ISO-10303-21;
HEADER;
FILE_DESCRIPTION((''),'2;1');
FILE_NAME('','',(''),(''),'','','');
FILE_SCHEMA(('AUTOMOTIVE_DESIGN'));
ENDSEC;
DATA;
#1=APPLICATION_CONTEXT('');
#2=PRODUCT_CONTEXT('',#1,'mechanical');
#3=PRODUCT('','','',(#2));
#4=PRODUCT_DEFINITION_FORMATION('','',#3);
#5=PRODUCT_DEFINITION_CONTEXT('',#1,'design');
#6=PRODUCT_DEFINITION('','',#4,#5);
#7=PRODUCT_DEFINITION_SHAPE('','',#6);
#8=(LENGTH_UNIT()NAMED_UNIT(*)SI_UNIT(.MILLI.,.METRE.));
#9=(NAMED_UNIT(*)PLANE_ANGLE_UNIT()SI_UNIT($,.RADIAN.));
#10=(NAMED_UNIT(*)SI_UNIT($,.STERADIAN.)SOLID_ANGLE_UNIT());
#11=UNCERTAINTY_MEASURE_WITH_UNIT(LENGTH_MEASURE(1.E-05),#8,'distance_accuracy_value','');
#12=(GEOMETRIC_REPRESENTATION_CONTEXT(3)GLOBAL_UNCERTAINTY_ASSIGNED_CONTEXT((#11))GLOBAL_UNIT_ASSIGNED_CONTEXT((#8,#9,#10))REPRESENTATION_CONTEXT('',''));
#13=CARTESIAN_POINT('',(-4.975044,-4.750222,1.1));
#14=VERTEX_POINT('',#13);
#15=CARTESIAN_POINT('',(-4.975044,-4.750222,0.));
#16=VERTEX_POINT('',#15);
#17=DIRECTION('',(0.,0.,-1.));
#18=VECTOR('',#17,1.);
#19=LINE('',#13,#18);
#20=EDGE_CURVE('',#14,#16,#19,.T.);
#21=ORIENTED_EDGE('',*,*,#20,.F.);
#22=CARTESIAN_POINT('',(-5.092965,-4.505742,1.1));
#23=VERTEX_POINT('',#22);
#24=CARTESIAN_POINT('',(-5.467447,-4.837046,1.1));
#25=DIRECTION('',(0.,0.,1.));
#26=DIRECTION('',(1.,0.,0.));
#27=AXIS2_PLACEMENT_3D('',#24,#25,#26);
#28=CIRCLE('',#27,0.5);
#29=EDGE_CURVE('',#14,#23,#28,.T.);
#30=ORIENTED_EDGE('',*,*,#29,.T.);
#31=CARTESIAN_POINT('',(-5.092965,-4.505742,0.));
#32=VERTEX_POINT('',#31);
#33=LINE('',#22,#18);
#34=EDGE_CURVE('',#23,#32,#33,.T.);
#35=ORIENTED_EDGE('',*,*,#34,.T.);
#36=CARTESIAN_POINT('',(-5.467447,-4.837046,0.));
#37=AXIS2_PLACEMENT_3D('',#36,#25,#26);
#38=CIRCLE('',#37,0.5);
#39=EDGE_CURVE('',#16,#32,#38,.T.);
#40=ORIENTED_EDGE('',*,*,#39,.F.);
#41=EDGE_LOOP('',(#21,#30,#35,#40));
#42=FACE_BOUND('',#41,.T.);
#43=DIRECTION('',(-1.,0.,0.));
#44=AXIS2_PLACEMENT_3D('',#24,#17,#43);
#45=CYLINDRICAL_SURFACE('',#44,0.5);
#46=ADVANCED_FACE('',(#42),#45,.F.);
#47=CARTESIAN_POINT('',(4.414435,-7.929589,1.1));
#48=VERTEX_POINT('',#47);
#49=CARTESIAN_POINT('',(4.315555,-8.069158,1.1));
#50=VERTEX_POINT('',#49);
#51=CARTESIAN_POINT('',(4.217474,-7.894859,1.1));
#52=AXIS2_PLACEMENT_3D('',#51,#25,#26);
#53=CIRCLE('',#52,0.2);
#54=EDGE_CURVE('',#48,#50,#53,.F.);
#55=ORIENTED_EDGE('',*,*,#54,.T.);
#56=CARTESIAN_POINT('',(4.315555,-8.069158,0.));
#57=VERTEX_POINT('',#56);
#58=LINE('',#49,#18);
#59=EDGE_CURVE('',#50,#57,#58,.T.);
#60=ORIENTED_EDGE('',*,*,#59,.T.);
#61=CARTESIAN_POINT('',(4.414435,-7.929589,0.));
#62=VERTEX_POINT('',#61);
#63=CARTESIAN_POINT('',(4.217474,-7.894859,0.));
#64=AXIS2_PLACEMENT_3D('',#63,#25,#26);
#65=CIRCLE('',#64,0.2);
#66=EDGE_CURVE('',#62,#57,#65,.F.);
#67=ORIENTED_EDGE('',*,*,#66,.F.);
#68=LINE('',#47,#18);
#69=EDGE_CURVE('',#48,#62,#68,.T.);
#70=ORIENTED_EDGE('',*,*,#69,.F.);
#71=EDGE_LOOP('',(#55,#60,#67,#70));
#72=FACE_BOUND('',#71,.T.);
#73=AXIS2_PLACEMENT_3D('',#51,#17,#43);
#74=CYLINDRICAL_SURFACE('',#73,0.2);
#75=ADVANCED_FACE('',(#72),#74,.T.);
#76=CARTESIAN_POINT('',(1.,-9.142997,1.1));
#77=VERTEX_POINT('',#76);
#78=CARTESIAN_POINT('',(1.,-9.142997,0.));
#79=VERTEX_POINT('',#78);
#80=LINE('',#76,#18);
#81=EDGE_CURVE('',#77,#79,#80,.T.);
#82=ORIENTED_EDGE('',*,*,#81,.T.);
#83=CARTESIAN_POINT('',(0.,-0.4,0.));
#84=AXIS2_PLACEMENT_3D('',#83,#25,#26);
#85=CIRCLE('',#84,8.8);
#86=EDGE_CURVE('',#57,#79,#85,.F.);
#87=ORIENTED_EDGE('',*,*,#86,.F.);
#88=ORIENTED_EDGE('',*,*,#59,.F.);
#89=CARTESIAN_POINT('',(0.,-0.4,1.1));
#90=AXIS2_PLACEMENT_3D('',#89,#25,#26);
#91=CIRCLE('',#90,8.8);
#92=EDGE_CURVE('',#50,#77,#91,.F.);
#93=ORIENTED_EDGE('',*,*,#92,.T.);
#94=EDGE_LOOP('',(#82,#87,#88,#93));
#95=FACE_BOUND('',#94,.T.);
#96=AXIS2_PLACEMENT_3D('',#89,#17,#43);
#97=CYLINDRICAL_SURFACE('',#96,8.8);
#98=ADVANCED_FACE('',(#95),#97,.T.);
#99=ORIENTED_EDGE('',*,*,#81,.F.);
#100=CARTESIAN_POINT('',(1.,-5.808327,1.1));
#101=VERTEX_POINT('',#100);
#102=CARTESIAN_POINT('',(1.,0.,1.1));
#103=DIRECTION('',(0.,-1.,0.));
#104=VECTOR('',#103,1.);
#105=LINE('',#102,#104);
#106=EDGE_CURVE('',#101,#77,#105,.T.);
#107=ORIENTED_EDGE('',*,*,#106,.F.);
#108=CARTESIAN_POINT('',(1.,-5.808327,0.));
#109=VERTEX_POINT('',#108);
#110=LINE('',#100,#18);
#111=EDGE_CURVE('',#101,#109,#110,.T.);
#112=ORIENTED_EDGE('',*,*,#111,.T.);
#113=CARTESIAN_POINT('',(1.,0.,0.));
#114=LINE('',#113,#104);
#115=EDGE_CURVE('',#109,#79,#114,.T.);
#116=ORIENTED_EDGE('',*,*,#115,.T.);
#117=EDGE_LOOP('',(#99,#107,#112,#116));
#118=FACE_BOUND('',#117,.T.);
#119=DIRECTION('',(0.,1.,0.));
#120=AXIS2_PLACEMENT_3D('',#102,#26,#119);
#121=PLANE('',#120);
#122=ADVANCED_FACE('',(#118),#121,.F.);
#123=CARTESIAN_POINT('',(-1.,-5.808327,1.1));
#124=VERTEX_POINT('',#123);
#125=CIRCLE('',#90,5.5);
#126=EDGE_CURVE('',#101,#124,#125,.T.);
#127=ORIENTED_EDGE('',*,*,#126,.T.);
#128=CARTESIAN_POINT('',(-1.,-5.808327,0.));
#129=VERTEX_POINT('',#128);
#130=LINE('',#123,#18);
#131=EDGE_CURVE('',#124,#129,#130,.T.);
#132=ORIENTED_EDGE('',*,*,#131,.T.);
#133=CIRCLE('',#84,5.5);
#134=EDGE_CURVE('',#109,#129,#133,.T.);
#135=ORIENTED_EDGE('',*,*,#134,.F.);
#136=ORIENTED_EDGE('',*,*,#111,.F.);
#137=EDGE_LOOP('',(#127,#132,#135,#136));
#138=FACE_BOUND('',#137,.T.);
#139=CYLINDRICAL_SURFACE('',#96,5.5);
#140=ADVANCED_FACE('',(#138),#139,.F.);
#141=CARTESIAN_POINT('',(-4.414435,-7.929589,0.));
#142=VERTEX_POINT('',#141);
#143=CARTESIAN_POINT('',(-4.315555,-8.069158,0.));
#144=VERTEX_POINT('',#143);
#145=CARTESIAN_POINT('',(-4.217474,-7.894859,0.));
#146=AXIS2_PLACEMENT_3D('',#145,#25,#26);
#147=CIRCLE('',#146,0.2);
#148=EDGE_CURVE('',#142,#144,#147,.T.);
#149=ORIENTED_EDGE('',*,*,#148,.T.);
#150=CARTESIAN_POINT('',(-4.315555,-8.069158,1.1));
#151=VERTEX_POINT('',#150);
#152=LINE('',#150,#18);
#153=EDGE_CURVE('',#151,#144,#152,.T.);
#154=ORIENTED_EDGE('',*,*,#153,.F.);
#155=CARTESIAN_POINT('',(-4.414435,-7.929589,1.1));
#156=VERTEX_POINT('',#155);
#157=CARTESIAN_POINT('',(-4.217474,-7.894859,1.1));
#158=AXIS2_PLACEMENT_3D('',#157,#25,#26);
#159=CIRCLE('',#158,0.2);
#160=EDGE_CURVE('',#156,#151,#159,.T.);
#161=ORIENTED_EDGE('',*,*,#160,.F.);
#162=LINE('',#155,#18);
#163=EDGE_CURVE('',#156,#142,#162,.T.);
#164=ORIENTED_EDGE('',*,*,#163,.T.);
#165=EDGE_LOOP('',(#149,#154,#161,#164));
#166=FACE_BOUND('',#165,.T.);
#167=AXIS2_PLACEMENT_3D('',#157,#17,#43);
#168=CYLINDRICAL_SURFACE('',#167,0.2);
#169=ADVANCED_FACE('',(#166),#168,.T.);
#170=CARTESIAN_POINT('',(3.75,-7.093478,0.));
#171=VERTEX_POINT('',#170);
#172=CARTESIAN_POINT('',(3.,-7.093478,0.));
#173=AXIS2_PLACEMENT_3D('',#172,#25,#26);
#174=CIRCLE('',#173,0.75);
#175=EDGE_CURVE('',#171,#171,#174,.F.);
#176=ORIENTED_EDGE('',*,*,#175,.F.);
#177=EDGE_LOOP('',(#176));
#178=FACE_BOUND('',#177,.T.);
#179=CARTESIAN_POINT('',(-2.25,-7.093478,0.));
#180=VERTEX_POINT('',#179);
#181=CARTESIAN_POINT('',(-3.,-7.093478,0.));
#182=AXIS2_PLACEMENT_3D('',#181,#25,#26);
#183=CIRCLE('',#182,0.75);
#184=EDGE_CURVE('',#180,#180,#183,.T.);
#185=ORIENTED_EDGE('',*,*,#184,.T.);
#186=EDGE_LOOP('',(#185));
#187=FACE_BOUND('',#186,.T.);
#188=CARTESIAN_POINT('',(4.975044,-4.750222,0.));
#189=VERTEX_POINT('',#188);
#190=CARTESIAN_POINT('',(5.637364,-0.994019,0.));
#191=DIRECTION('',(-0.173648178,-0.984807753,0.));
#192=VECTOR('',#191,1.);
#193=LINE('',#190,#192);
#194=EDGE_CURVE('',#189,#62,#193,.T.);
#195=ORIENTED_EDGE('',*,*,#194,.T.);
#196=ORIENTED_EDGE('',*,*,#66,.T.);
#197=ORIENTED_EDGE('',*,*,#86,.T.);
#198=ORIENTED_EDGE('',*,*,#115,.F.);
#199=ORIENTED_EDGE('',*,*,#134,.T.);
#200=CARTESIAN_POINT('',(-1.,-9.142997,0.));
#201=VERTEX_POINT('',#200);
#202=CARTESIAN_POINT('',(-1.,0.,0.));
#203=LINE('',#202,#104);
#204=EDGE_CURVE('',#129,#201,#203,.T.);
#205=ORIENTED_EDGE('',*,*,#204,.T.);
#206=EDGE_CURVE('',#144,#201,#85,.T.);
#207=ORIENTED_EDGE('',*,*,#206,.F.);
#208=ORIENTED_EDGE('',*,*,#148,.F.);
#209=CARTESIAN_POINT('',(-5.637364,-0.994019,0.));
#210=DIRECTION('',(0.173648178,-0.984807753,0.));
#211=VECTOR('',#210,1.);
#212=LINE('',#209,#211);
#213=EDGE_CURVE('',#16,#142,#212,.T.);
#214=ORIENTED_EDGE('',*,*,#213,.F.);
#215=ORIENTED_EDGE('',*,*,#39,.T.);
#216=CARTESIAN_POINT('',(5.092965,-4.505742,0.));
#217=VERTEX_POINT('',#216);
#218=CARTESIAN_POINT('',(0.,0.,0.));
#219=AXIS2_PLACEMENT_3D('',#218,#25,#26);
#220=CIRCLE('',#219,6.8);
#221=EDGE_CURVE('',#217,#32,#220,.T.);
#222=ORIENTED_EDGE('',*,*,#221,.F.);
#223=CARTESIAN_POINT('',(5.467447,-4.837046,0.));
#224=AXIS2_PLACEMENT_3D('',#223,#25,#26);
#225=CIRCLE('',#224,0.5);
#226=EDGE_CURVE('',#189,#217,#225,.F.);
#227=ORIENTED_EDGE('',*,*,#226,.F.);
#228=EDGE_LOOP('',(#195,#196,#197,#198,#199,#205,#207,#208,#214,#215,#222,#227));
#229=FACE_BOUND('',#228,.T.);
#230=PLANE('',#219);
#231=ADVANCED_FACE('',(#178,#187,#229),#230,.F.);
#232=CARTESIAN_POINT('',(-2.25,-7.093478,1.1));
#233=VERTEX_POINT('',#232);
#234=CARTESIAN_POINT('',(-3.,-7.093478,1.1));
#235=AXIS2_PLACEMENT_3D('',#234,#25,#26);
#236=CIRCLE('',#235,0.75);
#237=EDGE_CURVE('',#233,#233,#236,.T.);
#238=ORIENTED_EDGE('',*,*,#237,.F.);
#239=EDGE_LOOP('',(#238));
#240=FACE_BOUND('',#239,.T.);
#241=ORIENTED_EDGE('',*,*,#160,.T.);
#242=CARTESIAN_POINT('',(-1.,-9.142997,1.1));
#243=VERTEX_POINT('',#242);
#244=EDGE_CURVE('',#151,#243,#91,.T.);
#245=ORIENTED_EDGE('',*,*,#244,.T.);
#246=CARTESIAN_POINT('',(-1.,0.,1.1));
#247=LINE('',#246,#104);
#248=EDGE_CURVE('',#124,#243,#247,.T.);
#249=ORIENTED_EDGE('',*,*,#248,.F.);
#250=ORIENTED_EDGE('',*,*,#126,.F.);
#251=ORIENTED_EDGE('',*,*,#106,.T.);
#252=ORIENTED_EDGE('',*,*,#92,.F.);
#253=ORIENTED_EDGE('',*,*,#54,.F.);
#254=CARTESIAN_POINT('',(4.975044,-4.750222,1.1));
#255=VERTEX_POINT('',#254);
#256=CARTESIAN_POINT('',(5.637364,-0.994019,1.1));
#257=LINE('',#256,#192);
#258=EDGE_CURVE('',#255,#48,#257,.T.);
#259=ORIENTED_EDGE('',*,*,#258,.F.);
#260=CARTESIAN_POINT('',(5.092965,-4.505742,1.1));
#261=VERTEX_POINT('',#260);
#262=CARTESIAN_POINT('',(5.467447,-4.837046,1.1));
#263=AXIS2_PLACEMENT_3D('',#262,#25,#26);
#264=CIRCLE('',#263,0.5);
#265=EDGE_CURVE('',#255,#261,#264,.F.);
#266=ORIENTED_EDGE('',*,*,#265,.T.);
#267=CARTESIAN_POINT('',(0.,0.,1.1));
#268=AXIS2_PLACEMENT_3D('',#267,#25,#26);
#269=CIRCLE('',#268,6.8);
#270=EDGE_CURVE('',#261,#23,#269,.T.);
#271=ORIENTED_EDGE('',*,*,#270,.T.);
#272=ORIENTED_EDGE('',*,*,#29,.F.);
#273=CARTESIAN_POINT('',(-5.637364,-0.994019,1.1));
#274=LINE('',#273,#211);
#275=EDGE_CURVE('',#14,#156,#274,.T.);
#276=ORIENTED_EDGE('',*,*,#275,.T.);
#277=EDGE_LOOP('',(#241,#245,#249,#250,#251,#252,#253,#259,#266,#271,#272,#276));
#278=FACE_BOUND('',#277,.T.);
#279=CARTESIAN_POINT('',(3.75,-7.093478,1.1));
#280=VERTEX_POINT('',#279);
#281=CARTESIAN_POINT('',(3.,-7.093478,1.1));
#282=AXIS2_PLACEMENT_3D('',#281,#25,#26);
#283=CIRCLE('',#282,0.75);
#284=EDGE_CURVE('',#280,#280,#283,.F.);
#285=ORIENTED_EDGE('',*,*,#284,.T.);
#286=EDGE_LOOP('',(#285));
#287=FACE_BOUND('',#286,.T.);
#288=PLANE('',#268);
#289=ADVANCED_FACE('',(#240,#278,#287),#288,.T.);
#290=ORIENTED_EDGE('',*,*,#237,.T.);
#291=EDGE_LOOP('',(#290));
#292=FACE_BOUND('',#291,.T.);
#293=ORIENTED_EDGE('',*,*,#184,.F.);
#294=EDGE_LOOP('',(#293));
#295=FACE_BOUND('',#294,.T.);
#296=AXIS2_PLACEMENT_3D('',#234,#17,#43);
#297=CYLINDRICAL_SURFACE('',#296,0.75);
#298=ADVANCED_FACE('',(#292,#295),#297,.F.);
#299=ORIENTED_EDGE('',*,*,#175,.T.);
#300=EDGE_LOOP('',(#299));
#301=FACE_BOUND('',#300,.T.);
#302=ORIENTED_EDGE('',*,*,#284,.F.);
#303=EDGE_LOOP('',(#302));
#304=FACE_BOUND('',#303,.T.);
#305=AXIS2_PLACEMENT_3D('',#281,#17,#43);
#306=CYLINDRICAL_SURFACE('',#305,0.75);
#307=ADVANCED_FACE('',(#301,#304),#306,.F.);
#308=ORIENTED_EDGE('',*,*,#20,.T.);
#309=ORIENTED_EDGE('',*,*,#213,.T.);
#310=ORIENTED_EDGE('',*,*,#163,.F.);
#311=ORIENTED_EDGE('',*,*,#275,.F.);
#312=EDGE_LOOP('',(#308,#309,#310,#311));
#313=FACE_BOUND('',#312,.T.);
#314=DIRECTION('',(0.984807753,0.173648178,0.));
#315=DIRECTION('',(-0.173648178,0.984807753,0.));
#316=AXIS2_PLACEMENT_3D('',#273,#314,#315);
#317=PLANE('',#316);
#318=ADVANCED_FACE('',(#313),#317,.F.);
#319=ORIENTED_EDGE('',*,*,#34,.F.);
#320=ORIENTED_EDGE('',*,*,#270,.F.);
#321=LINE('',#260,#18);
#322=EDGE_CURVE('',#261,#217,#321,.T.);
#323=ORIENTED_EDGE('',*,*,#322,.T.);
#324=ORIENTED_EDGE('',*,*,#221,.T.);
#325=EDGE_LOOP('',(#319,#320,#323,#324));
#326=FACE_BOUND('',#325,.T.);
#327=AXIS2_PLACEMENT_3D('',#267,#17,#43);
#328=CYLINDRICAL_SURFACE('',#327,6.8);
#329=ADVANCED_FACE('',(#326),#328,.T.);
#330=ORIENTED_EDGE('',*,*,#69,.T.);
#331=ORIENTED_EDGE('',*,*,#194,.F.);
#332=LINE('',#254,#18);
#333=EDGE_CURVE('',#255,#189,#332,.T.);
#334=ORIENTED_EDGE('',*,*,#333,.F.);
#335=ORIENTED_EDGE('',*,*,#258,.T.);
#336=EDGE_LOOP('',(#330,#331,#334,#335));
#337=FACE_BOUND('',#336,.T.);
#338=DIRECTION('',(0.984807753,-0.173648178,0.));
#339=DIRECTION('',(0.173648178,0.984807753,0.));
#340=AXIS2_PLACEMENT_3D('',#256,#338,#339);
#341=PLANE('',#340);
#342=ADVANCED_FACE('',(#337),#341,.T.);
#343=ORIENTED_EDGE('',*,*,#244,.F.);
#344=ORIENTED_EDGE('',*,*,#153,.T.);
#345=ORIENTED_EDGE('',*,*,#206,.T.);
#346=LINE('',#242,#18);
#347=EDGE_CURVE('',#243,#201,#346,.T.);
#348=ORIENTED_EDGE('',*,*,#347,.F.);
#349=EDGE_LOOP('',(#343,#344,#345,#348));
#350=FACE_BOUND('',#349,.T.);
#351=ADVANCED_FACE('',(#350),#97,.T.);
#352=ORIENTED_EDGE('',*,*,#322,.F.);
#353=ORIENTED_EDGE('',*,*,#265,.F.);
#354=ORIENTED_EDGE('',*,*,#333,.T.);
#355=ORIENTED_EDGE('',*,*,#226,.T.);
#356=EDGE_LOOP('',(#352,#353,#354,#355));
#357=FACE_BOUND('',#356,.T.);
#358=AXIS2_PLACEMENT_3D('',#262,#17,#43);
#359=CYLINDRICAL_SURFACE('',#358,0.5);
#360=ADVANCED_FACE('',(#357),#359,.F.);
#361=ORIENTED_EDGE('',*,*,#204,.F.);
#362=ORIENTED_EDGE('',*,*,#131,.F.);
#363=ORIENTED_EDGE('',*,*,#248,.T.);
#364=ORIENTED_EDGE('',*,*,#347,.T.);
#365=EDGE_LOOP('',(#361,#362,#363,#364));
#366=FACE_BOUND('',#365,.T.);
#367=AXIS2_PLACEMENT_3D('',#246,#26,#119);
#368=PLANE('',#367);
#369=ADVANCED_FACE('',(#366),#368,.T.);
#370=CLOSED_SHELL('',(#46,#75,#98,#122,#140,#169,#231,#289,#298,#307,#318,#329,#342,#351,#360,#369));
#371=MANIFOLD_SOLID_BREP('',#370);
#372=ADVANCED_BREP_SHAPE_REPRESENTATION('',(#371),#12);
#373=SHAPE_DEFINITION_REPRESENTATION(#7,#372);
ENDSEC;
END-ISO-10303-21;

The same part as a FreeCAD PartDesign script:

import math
import FreeCAD as App
import Part
import Sketcher

V = App.Vector
Q = App.Units.Quantity

doc = App.newDocument("Part")
body = doc.addObject("PartDesign::Body", "Body")

# Sketch on XY plane
sketch1 = body.newObject("Sketcher::SketchObject", "Sketch")
sketch1.AttachmentSupport = (doc.getObject("XY_Plane"), [""])
sketch1.MapMode = "FlatFace"
sketch1.addGeometry([
    Part.LineSegment(V(-1, -9.14, 0), V(-1, -5.81, 0)),  # 0
    Part.ArcOfCircle(Part.Circle(V(0, -0.4, 0), V(0, 0, 1), 5.5), math.radians(0), math.radians(260)),  # 1
    Part.ArcOfCircle(Part.Circle(V(0, -0.4, 0), V(0, 0, 1), 5.5), math.radians(-80), math.radians(0)),  # 2
    Part.LineSegment(V(1, -5.81, 0), V(1, -9.14, 0)),  # 3
    Part.ArcOfCircle(Part.Circle(V(0, -0.4, 0), V(0, 0, 1), 8.8), math.radians(-83), math.radians(-61)),  # 4
    Part.ArcOfCircle(Part.Circle(V(4.22, -7.89, 0), V(0, 0, 1), 0.2), math.radians(-61), math.radians(-10)),  # 5
    Part.LineSegment(V(4.41, -7.93, 0), V(4.98, -4.75, 0)),  # 6
    Part.ArcOfCircle(Part.Circle(V(5.47, -4.84, 0), V(0, 0, 1), 0.5), math.radians(139), math.radians(170)),  # 7
    Part.ArcOfCircle(Part.Circle(V(0, 0, 0), V(0, 0, 1), 6.8), math.radians(-41), math.radians(221)),  # 8
    Part.ArcOfCircle(Part.Circle(V(-5.47, -4.84, 0), V(0, 0, 1), 0.5), math.radians(10), math.radians(41)),  # 9
    Part.LineSegment(V(-4.98, -4.75, 0), V(-4.41, -7.93, 0)),  # 10
    Part.ArcOfCircle(Part.Circle(V(-4.22, -7.89, 0), V(0, 0, 1), 0.2), math.radians(-170), math.radians(-119)),  # 11
    Part.ArcOfCircle(Part.Circle(V(0, -0.4, 0), V(0, 0, 1), 8.8), math.radians(-119), math.radians(-97)),  # 12
    Part.Circle(V(-3, -7.09, 0), V(0, 0, 1), 0.75),  # 13
    Part.Circle(V(3, -7.09, 0), V(0, 0, 1), 0.75),  # 14
], False)
sketch1.addConstraint([
    Sketcher.Constraint("Coincident", 0, 2, 1, 2),
    Sketcher.Constraint("Tangent", 1, 1, 2, 2),
    Sketcher.Constraint("Coincident", 2, 1, 3, 1),
    Sketcher.Constraint("Coincident", 3, 2, 4, 1),
    Sketcher.Constraint("Tangent", 4, 2, 5, 1),
    Sketcher.Constraint("Tangent", 5, 2, 6, 1),
    Sketcher.Constraint("Tangent", 6, 2, 7, 2),
    Sketcher.Constraint("Tangent", 7, 1, 8, 1),
    Sketcher.Constraint("Tangent", 8, 2, 9, 2),
    Sketcher.Constraint("Tangent", 9, 1, 10, 1),
    Sketcher.Constraint("Tangent", 10, 2, 11, 1),
    Sketcher.Constraint("Tangent", 11, 2, 12, 1),
    Sketcher.Constraint("Coincident", 12, 2, 0, 1),
    Sketcher.Constraint("Vertical", 0),
    Sketcher.Constraint("Vertical", 3),
    Sketcher.Constraint("Coincident", 8, 3, -1, 1),
    Sketcher.Constraint("Coincident", 4, 3, 1, 3),
    Sketcher.Constraint("Coincident", 12, 3, 1, 3),
    Sketcher.Constraint("Equal", 1, 2),
    Sketcher.Constraint("Equal", 7, 9),
    Sketcher.Constraint("Equal", 5, 11),
    Sketcher.Constraint("Equal", 4, 12),
    Sketcher.Constraint("Equal", 13, 14),
    Sketcher.Constraint("Symmetric", 5, 3, 11, 3, -2),
    Sketcher.Constraint("Symmetric", 13, 3, 14, 3, -2),
    Sketcher.Constraint("Horizontal", 7, 3, 9, 3),
    Sketcher.Constraint("Horizontal", 12, 3, 1, 1),
    Sketcher.Constraint("Horizontal", 0, 2, 2, 1),
    Sketcher.Constraint("Diameter", 13, Q("1.5 mm")),
    Sketcher.Constraint("Radius", 1, Q("5.5 mm")),
    Sketcher.Constraint("Radius", 4, Q("8.8 mm")),
    Sketcher.Constraint("Radius", 5, Q("0.2 mm")),
    Sketcher.Constraint("Radius", 7, Q("0.5 mm")),
    Sketcher.Constraint("Radius", 8, Q("6.8 mm")),
    Sketcher.Constraint("Angle", 6, Q("80 deg")),
    Sketcher.Constraint("DistanceX", 13, 3, -1, 1, Q("3 mm")),
    Sketcher.Constraint("DistanceX", 0, 2, -1, 1, Q("1 mm")),
    Sketcher.Constraint("DistanceY", 1, 3, -1, 1, Q("0.4 mm")),
    Sketcher.Constraint("DistanceY", 11, 2, 11, 3, Q("0.174299 mm")),
    Sketcher.Constraint("DistanceY", 11, 3, 13, 3, Q("0.801382 mm")),
])
pad1 = body.newObject("PartDesign::Pad", "Pad")
pad1.Profile = sketch1
pad1.Length = 1.1

doc.recompute()
